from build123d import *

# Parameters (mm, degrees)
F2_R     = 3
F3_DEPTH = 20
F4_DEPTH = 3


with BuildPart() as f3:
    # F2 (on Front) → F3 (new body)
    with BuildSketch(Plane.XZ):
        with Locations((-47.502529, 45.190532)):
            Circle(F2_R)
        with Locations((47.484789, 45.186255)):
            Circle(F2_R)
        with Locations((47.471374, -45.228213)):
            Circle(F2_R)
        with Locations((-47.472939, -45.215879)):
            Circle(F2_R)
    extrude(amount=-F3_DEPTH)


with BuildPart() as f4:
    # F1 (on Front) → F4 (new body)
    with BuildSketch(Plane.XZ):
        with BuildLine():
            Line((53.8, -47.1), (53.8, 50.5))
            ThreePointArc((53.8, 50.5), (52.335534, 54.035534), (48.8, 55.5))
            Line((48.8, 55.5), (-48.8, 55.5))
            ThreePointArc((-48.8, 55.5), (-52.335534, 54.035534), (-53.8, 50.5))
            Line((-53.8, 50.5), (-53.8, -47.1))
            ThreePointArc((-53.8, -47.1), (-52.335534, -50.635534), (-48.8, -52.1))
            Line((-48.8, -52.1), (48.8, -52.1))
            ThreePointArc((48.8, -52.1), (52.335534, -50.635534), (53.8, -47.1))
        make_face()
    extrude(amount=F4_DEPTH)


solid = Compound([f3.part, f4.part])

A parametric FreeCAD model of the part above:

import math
import FreeCAD as App
import Part
import Sketcher
from FreeCAD import Vector

doc = App.newDocument("Part")
body = doc.addObject("PartDesign::Body", "Body")
body.AllowCompound = True

sketch1 = doc.addObject("Sketcher::SketchObject", "Sketch")
body.addObject(sketch1)
sketch1.AttachmentSupport = (doc.XZ_Plane, [""])
sketch1.MapMode = "FlatFace"
sketch1.addGeometry([
    Part.Circle(Vector(-47.5, 45.2, 0), Vector(0, 0, 1), 3),
    Part.Circle(Vector(47.5, 45.2, 0), Vector(0, 0, 1), 3),
    Part.Circle(Vector(47.5, -45.2, 0), Vector(0, 0, 1), 3),
    Part.Circle(Vector(-47.5, -45.2, 0), Vector(0, 0, 1), 3),
], False)
sketch1.addConstraint([
    Sketcher.Constraint("Equal", 0, 1),
    Sketcher.Constraint("Equal", 1, 2),
    Sketcher.Constraint("Equal", 2, 3),
    Sketcher.Constraint("Diameter", 0, 6.0),
    Sketcher.Constraint("DistanceX", 0, 3, -1, 1, 47.502529),
    Sketcher.Constraint("DistanceY", -1, 1, 0, 3, 45.190532),
    Sketcher.Constraint("DistanceX", -1, 1, 1, 3, 47.484789),
    Sketcher.Constraint("DistanceX", 3, 3, -1, 1, 47.472939),
    Sketcher.Constraint("DistanceY", 3, 3, -1, 1, 45.215879),
    Sketcher.Constraint("DistanceY", 2, 3, 1, 3, 90.414468),
    Sketcher.Constraint("DistanceY", -1, 1, 1, 3, 45.186255),
    Sketcher.Constraint("DistanceX", -1, 1, 2, 3, 47.471374),
])
pad1 = doc.addObject("PartDesign::Pad", "Pad")
body.addObject(pad1)
pad1.Profile = sketch1
pad1.Length = 20
pad1.Reversed = True
body2 = doc.addObject("PartDesign::Body", "Body001")

sketch2 = doc.addObject("Sketcher::SketchObject", "Sketch001")
body2.addObject(sketch2)
sketch2.AttachmentSupport = (doc.getObject("XZ_Plane001"), [""])
sketch2.MapMode = "FlatFace"
sketch2.addGeometry([
    Part.LineSegment(Vector(53.8, -47.1, 0), Vector(53.8, 50.5, 0)),
    Part.ArcOfCircle(Part.Circle(Vector(48.8, 50.5, 0), Vector(0, 0, 1), 5), math.radians(0), math.radians(90)),
    Part.LineSegment(Vector(48.8, 55.5, 0), Vector(-48.8, 55.5, 0)),
    Part.ArcOfCircle(Part.Circle(Vector(-48.8, 50.5, 0), Vector(0, 0, 1), 5), math.radians(90), math.radians(180)),
    Part.LineSegment(Vector(-53.8, 50.5, 0), Vector(-53.8, -47.1, 0)),
    Part.ArcOfCircle(Part.Circle(Vector(-48.8, -47.1, 0), Vector(0, 0, 1), 5), math.radians(180), math.radians(270)),
    Part.LineSegment(Vector(-48.8, -52.1, 0), Vector(48.8, -52.1, 0)),
    Part.ArcOfCircle(Part.Circle(Vector(48.8, -47.1, 0), Vector(0, 0, 1), 5), math.radians(-90), math.radians(0)),
], False)
sketch2.addConstraint([
    Sketcher.Constraint("Tangent", 0, 2, 1, 1),
    Sketcher.Constraint("Tangent", 1, 2, 2, 1),
    Sketcher.Constraint("Tangent", 2, 2, 3, 1),
    Sketcher.Constraint("Tangent", 3, 2, 4, 1),
    Sketcher.Constraint("Tangent", 4, 2, 5, 1),
    Sketcher.Constraint("Tangent", 5, 2, 6, 1),
    Sketcher.Constraint("Tangent", 6, 2, 7, 1),
    Sketcher.Constraint("Tangent", 7, 2, 0, 1),
    Sketcher.Constraint("Vertical", 0),
    Sketcher.Constraint("Horizontal", 2),
    Sketcher.Constraint("Vertical", 4),
    Sketcher.Constraint("Horizontal", 6),
    Sketcher.Constraint("Equal", 1, 3),
    Sketcher.Constraint("Equal", 3, 5),
    Sketcher.Constraint("Equal", 5, 7),
    Sketcher.Constraint("Equal", 6, 0),
    Sketcher.Constraint("Radius", 1, 5.0),
    Sketcher.Constraint("DistanceX", 2, 2, 2, 1, 97.6),
    Sketcher.Constraint("DistanceX", -1, 1, 1, 3, 48.8),
    Sketcher.Constraint("DistanceY", -1, 1, 1, 3, 50.5),
])
pad2 = doc.addObject("PartDesign::Pad", "Pad001")
body2.addObject(pad2)
pad2.Profile = sketch2
pad2.Length = 3

doc.recompute()
